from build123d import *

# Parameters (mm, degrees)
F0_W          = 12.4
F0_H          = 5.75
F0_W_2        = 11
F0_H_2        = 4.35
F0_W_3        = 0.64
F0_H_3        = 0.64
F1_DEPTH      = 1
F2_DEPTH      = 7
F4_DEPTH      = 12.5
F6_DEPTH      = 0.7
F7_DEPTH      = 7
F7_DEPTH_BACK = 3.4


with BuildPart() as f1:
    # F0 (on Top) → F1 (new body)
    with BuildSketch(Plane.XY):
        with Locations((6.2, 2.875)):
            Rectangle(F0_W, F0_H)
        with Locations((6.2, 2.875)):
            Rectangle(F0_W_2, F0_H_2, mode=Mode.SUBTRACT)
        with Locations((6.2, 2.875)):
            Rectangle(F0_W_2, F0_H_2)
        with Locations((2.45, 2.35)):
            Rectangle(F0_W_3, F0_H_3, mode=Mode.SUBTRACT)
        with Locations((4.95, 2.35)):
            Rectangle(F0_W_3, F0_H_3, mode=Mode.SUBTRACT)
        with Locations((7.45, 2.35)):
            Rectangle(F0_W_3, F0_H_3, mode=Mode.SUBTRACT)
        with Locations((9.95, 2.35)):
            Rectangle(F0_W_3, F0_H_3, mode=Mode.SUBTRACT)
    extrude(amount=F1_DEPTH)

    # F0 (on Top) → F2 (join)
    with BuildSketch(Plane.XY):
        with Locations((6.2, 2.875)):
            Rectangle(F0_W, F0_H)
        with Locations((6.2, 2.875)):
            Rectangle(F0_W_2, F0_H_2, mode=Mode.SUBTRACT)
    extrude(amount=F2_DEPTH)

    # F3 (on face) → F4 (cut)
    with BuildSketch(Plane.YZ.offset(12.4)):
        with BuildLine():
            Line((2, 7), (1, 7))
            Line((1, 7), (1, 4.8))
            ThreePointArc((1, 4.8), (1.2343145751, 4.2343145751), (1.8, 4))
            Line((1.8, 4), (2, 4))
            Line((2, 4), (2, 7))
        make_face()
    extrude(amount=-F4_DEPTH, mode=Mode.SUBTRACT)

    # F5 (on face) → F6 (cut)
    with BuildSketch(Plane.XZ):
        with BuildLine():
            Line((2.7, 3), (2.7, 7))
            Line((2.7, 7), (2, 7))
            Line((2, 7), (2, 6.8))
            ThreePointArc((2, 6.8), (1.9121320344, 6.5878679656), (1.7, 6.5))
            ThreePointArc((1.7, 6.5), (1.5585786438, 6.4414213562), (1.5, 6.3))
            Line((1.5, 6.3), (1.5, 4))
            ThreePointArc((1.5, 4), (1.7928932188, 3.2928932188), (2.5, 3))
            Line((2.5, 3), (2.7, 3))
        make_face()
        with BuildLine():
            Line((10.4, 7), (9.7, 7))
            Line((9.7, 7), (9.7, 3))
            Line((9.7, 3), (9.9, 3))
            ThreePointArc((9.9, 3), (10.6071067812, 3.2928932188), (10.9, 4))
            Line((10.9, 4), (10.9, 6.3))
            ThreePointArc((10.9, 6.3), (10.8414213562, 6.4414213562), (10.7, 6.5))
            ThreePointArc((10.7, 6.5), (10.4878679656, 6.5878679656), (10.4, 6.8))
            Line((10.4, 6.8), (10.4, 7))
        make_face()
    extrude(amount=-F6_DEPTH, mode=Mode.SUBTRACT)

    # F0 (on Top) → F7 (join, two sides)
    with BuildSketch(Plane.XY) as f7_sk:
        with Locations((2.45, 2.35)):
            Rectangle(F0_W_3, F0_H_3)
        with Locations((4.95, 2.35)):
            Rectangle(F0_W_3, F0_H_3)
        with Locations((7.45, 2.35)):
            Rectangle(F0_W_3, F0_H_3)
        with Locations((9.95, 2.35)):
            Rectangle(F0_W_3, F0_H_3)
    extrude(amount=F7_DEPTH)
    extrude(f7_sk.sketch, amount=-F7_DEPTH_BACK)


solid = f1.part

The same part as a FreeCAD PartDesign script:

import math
import FreeCAD as App
import Part
import Sketcher
from FreeCAD import Vector

doc = App.newDocument("Part")
params = doc.addObject("Spreadsheet::Sheet", "Params")
for row, (alias, value) in enumerate([
    ("sketch1_width", "12.4 mm"),
    ("sketch1_width2", "0.64 mm"),
    ("sketch1_height", "5.75 mm"),
    ("pad1_length", "1 mm"),
    ("sketch2_width", "11 mm"),
    ("sketch2_width2", "12.4 mm"),
    ("sketch2_height", "5.75 mm"),
    ("sketch2_height2", "4.35 mm"),
    ("pad2_length", "7 mm"),
    ("sketch3_radius", "0.8 mm"),
    ("sketch3_width", "1 mm"),
    ("sketch3_height", "3 mm"),
    ("pocket1_length", "12.5 mm"),
    ("sketch4_radius", "1 mm"),
    ("sketch4_radius2", "0.3 mm"),
    ("sketch4_radius3", "0.2 mm"),
    ("sketch4_height", "4 mm"),
    ("sketch4_width", "0.7 mm"),
    ("pocket2_length", "0.7 mm"),
    ("sketch5_width", "0.64 mm"),
    ("pad3_length", "7 mm"),
    ("pad3_length2", "3.4 mm"),
], start=1):
    params.set(f"A{row}", alias)
    params.set(f"B{row}", "=" + value)
    params.setAlias(f"B{row}", alias)

body = doc.addObject("PartDesign::Body", "Body")

# Sketch on XY plane
sketch1 = doc.addObject("Sketcher::SketchObject", "Sketch")
body.addObject(sketch1)
sketch1.AttachmentSupport = (doc.XY_Plane, [""])
sketch1.MapMode = "FlatFace"
sketch1.addGeometry(Part.LineSegment(Vector(0, 5.8, 0), Vector(0, 0, 0)), False)
sketch1.addGeometry(Part.LineSegment(Vector(0, 0, 0), Vector(12.4, 0, 0)), False)
sketch1.addGeometry(Part.LineSegment(Vector(12.4, 0, 0), Vector(12.4, 5.8, 0)), False)
sketch1.addGeometry(Part.LineSegment(Vector(12.4, 5.8, 0), Vector(0, 5.8, 0)), False)
sketch1.addGeometry(Part.LineSegment(Vector(2.8, 2, 0), Vector(2.1, 2, 0)), False)
sketch1.addGeometry(Part.LineSegment(Vector(2.1, 2, 0), Vector(2.1, 2.7, 0)), False)
sketch1.addGeometry(Part.LineSegment(Vector(2.1, 2.7, 0), Vector(2.8, 2.7, 0)), False)
sketch1.addGeometry(Part.LineSegment(Vector(2.8, 2.7, 0), Vector(2.8, 2, 0)), False)
sketch1.addGeometry(Part.LineSegment(Vector(5.3, 2, 0), Vector(4.6, 2, 0)), False)
sketch1.addGeometry(Part.LineSegment(Vector(4.6, 2, 0), Vector(4.6, 2.7, 0)), False)
sketch1.addGeometry(Part.LineSegment(Vector(4.6, 2.7, 0), Vector(5.3, 2.7, 0)), False)
sketch1.addGeometry(Part.LineSegment(Vector(5.3, 2.7, 0), Vector(5.3, 2, 0)), False)
sketch1.addGeometry(Part.LineSegment(Vector(7.8, 2, 0), Vector(7.1, 2, 0)), False)
sketch1.addGeometry(Part.LineSegment(Vector(7.1, 2, 0), Vector(7.1, 2.7, 0)), False)
sketch1.addGeometry(Part.LineSegment(Vector(7.1, 2.7, 0), Vector(7.8, 2.7, 0)), False)
sketch1.addGeometry(Part.LineSegment(Vector(7.8, 2.7, 0), Vector(7.8, 2, 0)), False)
sketch1.addGeometry(Part.LineSegment(Vector(10.3, 2, 0), Vector(9.6, 2, 0)), False)
sketch1.addGeometry(Part.LineSegment(Vector(9.6, 2, 0), Vector(9.6, 2.7, 0)), False)
sketch1.addGeometry(Part.LineSegment(Vector(9.6, 2.7, 0), Vector(10.3, 2.7, 0)), False)
sketch1.addGeometry(Part.LineSegment(Vector(10.3, 2.7, 0), Vector(10.3, 2, 0)), False)
sketch1.addConstraint(Sketcher.Constraint("Coincident", 0, 2, 1, 1))
sketch1.addConstraint(Sketcher.Constraint("Coincident", 1, 2, 2, 1))
sketch1.addConstraint(Sketcher.Constraint("Coincident", 2, 2, 3, 1))
sketch1.addConstraint(Sketcher.Constraint("Coincident", 3, 2, 0, 1))
sketch1.addConstraint(Sketcher.Constraint("Coincident", 4, 2, 5, 1))
sketch1.addConstraint(Sketcher.Constraint("Coincident", 5, 2, 6, 1))
sketch1.addConstraint(Sketcher.Constraint("Coincident", 6, 2, 7, 1))
sketch1.addConstraint(Sketcher.Constraint("Coincident", 7, 2, 4, 1))
sketch1.addConstraint(Sketcher.Constraint("Coincident", 8, 2, 9, 1))
sketch1.addConstraint(Sketcher.Constraint("Coincident", 9, 2, 10, 1))
sketch1.addConstraint(Sketcher.Constraint("Coincident", 10, 2, 11, 1))
sketch1.addConstraint(Sketcher.Constraint("Coincident", 11, 2, 8, 1))
sketch1.addConstraint(Sketcher.Constraint("Coincident", 12, 2, 13, 1))
sketch1.addConstraint(Sketcher.Constraint("Coincident", 13, 2, 14, 1))
sketch1.addConstraint(Sketcher.Constraint("Coincident", 14, 2, 15, 1))
sketch1.addConstraint(Sketcher.Constraint("Coincident", 15, 2, 12, 1))
sketch1.addConstraint(Sketcher.Constraint("Coincident", 16, 2, 17, 1))
sketch1.addConstraint(Sketcher.Constraint("Coincident", 17, 2, 18, 1))
sketch1.addConstraint(Sketcher.Constraint("Coincident", 18, 2, 19, 1))
sketch1.addConstraint(Sketcher.Constraint("Coincident", 19, 2, 16, 1))
sketch1.addConstraint(Sketcher.Constraint("Vertical", 0))
sketch1.addConstraint(Sketcher.Constraint("Horizontal", 1))
sketch1.addConstraint(Sketcher.Constraint("Vertical", 2))
sketch1.addConstraint(Sketcher.Constraint("Horizontal", 3))
sketch1.addConstraint(Sketcher.Constraint("Horizontal", 4))
sketch1.addConstraint(Sketcher.Constraint("Vertical", 5))
sketch1.addConstraint(Sketcher.Constraint("Horizontal", 6))
sketch1.addConstraint(Sketcher.Constraint("Vertical", 7))
sketch1.addConstraint(Sketcher.Constraint("Horizontal", 8))
sketch1.addConstraint(Sketcher.Constraint("Vertical", 9))
sketch1.addConstraint(Sketcher.Constraint("Horizontal", 10))
sketch1.addConstraint(Sketcher.Constraint("Vertical", 11))
sketch1.addConstraint(Sketcher.Constraint("Horizontal", 12))
sketch1.addConstraint(Sketcher.Constraint("Vertical", 13))
sketch1.addConstraint(Sketcher.Constraint("Horizontal", 14))
sketch1.addConstraint(Sketcher.Constraint("Vertical", 15))
sketch1.addConstraint(Sketcher.Constraint("Horizontal", 16))
sketch1.addConstraint(Sketcher.Constraint("Vertical", 17))
sketch1.addConstraint(Sketcher.Constraint("Horizontal", 18))
sketch1.addConstraint(Sketcher.Constraint("Vertical", 19))
sketch1.addConstraint(Sketcher.Constraint("Coincident", 0, 2, -1, 1))
sketch1.addConstraint(Sketcher.Constraint("Horizontal", 7, 2, 8, 2))
sketch1.addConstraint(Sketcher.Constraint("Horizontal", 6, 2, 9, 2))
sketch1.addConstraint(Sketcher.Constraint("Horizontal", 11, 2, 12, 2))
sketch1.addConstraint(Sketcher.Constraint("Horizontal", 10, 2, 13, 2))
sketch1.addConstraint(Sketcher.Constraint("Horizontal", 15, 2, 16, 2))
sketch1.addConstraint(Sketcher.Constraint("Horizontal", 14, 2, 17, 2))
sketch1.addConstraint(Sketcher.Constraint("Equal", 6, 8))
sketch1.addConstraint(Sketcher.Constraint("Equal", 10, 12))
sketch1.addConstraint(Sketcher.Constraint("Equal", 14, 16))
sketch1.addConstraint(Sketcher.Constraint("Equal", 18, 5))
sketch1.addConstraint(Sketcher.Constraint("DistanceX", 1, 1, 1, 2, 12.4))
sketch1.addConstraint(Sketcher.Constraint("DistanceX", 4, 2, 4, 1, 0.64))
sketch1.addConstraint(Sketcher.Constraint("DistanceY", 0, 2, 0, 1, 5.75))
sketch1.addConstraint(Sketcher.Constraint("DistanceX", 4, 2, 8, 2, 2.5))
sketch1.addConstraint(Sketcher.Constraint("DistanceX", 8, 2, 12, 2, 2.5))
sketch1.addConstraint(Sketcher.Constraint("DistanceX", 12, 2, 16, 2, 2.5))
sketch1.addConstraint(Sketcher.Constraint("DistanceX", -1, 1, 4, 2, 2.13))
sketch1.addConstraint(Sketcher.Constraint("DistanceY", -1, 1, 4, 2, 2.03))
sketch1.setExpression("Constraints[51]", "Params.sketch1_width")
sketch1.setExpression("Constraints[52]", "Params.sketch1_width2")
sketch1.setExpression("Constraints[53]", "Params.sketch1_height")
pad1 = doc.addObject("PartDesign::Pad", "Pad")
body.addObject(pad1)
pad1.Profile = sketch1
pad1.setExpression("Length", "Params.pad1_length")

# Sketch on XY plane
sketch2 = doc.addObject("Sketcher::SketchObject", "Sketch001")
body.addObject(sketch2)
sketch2.AttachmentSupport = (doc.XY_Plane, [""])
sketch2.MapMode = "FlatFace"
sketch2.addGeometry(Part.LineSegment(Vector(0, 5.8, 0), Vector(0, 0, 0)), False)
sketch2.addGeometry(Part.LineSegment(Vector(0, 0, 0), Vector(12.4, 0, 0)), False)
sketch2.addGeometry(Part.LineSegment(Vector(12.4, 0, 0), Vector(12.4, 5.8, 0)), False)
sketch2.addGeometry(Part.LineSegment(Vector(12.4, 5.8, 0), Vector(0, 5.8, 0)), False)
sketch2.addGeometry(Part.LineSegment(Vector(11.7, 0.7, 0), Vector(0.7, 0.7, 0)), False)
sketch2.addGeometry(Part.LineSegment(Vector(0.7, 0.7, 0), Vector(0.7, 5, 0)), False)
sketch2.addGeometry(Part.LineSegment(Vector(0.7, 5, 0), Vector(11.7, 5, 0)), False)
sketch2.addGeometry(Part.LineSegment(Vector(11.7, 5, 0), Vector(11.7, 0.7, 0)), False)
sketch2.addConstraint(Sketcher.Constraint("Coincident", 0, 2, 1, 1))
sketch2.addConstraint(Sketcher.Constraint("Coincident", 1, 2, 2, 1))
sketch2.addConstraint(Sketcher.Constraint("Coincident", 2, 2, 3, 1))
sketch2.addConstraint(Sketcher.Constraint("Coincident", 3, 2, 0, 1))
sketch2.addConstraint(Sketcher.Constraint("Coincident", 4, 2, 5, 1))
sketch2.addConstraint(Sketcher.Constraint("Coincident", 5, 2, 6, 1))
sketch2.addConstraint(Sketcher.Constraint("Coincident", 6, 2, 7, 1))
sketch2.addConstraint(Sketcher.Constraint("Coincident", 7, 2, 4, 1))
sketch2.addConstraint(Sketcher.Constraint("Vertical", 0))
sketch2.addConstraint(Sketcher.Constraint("Horizontal", 1))
sketch2.addConstraint(Sketcher.Constraint("Vertical", 2))
sketch2.addConstraint(Sketcher.Constraint("Horizontal", 3))
sketch2.addConstraint(Sketcher.Constraint("Horizontal", 4))
sketch2.addConstraint(Sketcher.Constraint("Vertical", 5))
sketch2.addConstraint(Sketcher.Constraint("Horizontal", 6))
sketch2.addConstraint(Sketcher.Constraint("Vertical", 7))
sketch2.addConstraint(Sketcher.Constraint("Coincident", 0, 2, -1, 1))
sketch2.addConstraint(Sketcher.Constraint("DistanceX", 4, 2, 4, 1, 11.0))
sketch2.addConstraint(Sketcher.Constraint("DistanceX", 1, 1, 1, 2, 12.4))
sketch2.addConstraint(Sketcher.Constraint("DistanceY", 0, 2, 0, 1, 5.75))
sketch2.addConstraint(Sketcher.Constraint("DistanceY", 5, 1, 5, 2, 4.35))
sketch2.addConstraint(Sketcher.Constraint("DistanceX", -1, 1, 4, 2, 0.7))
sketch2.addConstraint(Sketcher.Constraint("DistanceY", -1, 1, 4, 2, 0.7))
sketch2.setExpression("Constraints[17]", "Params.sketch2_width")
sketch2.setExpression("Constraints[18]", "Params.sketch2_width2")
sketch2.setExpression("Constraints[19]", "Params.sketch2_height")
sketch2.setExpression("Constraints[20]", "Params.sketch2_height2")
pad2 = doc.addObject("PartDesign::Pad", "Pad001")
body.addObject(pad2)
pad2.Profile = sketch2
pad2.setExpression("Length", "Params.pad2_length")

# Sketch on YZ plane
sketch3 = doc.addObject("Sketcher::SketchObject", "Sketch002")
body.addObject(sketch3)
sketch3.AttachmentSupport = (doc.YZ_Plane, [""])
sketch3.MapMode = "FlatFace"
sketch3.AttachmentOffset = App.Placement(Vector(0, 0, 12.4), App.Rotation())
sketch3.addGeometry(Part.LineSegment(Vector(2, 7, 0), Vector(1, 7, 0)), False)
sketch3.addGeometry(Part.LineSegment(Vector(1, 7, 0), Vector(1, 4.8, 0)), False)
sketch3.addGeometry(Part.ArcOfCircle(Part.Circle(Vector(1.8, 4.8, 0), Vector(0, 0, 1), 0.8), math.radians(180), math.radians(270)), False)
sketch3.addGeometry(Part.LineSegment(Vector(1.8, 4, 0), Vector(2, 4, 0)), False)
sketch3.addGeometry(Part.LineSegment(Vector(2, 4, 0), Vector(2, 7, 0)), False)
sketch3.addConstraint(Sketcher.Constraint("Coincident", 0, 2, 1, 1))
sketch3.addConstraint(Sketcher.Constraint("Tangent", 1, 2, 2, 1))
sketch3.addConstraint(Sketcher.Constraint("Tangent", 2, 2, 3, 1))
sketch3.addConstraint(Sketcher.Constraint("Coincident", 3, 2, 4, 1))
sketch3.addConstraint(Sketcher.Constraint("Coincident", 4, 2, 0, 1))
sketch3.addConstraint(Sketcher.Constraint("Horizontal", 0))
sketch3.addConstraint(Sketcher.Constraint("Vertical", 1))
sketch3.addConstraint(Sketcher.Constraint("Horizontal", 3))
sketch3.addConstraint(Sketcher.Constraint("Vertical", 4))
sketch3.addConstraint(Sketcher.Constraint("Radius", 2, 0.8))
sketch3.addConstraint(Sketcher.Constraint("DistanceX", 0, 2, 0, 1, 1.0))
sketch3.addConstraint(Sketcher.Constraint("DistanceY", 4, 1, 4, 2, 3.0))
sketch3.addConstraint(Sketcher.Constraint("DistanceX", -1, 1, 0, 2, 1.0))
sketch3.addConstraint(Sketcher.Constraint("DistanceY", -1, 1, 0, 2, 7.0))
sketch3.setExpression("Constraints[9]", "Params.sketch3_radius")
sketch3.setExpression("Constraints[10]", "Params.sketch3_width")
sketch3.setExpression("Constraints[11]", "Params.sketch3_height")
pocket1 = doc.addObject("PartDesign::Pocket", "Pocket")
body.addObject(pocket1)
pocket1.Profile = sketch3
pocket1.setExpression("Length", "Params.pocket1_length")

# Sketch on XZ plane
sketch4 = doc.addObject("Sketcher::SketchObject", "Sketch003")
body.addObject(sketch4)
sketch4.AttachmentSupport = (doc.XZ_Plane, [""])
sketch4.MapMode = "FlatFace"
sketch4.addGeometry(Part.LineSegment(Vector(2.7, 3, 0), Vector(2.7, 7, 0)), False)
sketch4.addGeometry(Part.LineSegment(Vector(2.7, 7, 0), Vector(2, 7, 0)), False)
sketch4.addGeometry(Part.LineSegment(Vector(2, 7, 0), Vector(2, 6.8, 0)), False)
sketch4.addGeometry(Part.ArcOfCircle(Part.Circle(Vector(1.7, 6.8, 0), Vector(0, 0, 1), 0.3), math.radians(-90), math.radians(0)), False)
sketch4.addGeometry(Part.ArcOfCircle(Part.Circle(Vector(1.7, 6.3, 0), Vector(0, 0, 1), 0.2), math.radians(90), math.radians(180)), False)
sketch4.addGeometry(Part.LineSegment(Vector(1.5, 6.3, 0), Vector(1.5, 4, 0)), False)
sketch4.addGeometry(Part.ArcOfCircle(Part.Circle(Vector(2.5, 4, 0), Vector(0, 0, 1), 1), math.radians(180), math.radians(270)), False)
sketch4.addGeometry(Part.LineSegment(Vector(2.5, 3, 0), Vector(2.7, 3, 0)), False)
sketch4.addGeometry(Part.LineSegment(Vector(10.4, 7, 0), Vector(9.7, 7, 0)), False)
sketch4.addGeometry(Part.LineSegment(Vector(9.7, 7, 0), Vector(9.7, 3, 0)), False)
sketch4.addGeometry(Part.LineSegment(Vector(9.7, 3, 0), Vector(9.9, 3, 0)), False)
sketch4.addGeometry(Part.ArcOfCircle(Part.Circle(Vector(9.9, 4, 0), Vector(0, 0, 1), 1), math.radians(-90), math.radians(0)), False)
sketch4.addGeometry(Part.LineSegment(Vector(10.9, 4, 0), Vector(10.9, 6.3, 0)), False)
sketch4.addGeometry(Part.ArcOfCircle(Part.Circle(Vector(10.7, 6.3, 0), Vector(0, 0, 1), 0.2), math.radians(0), math.radians(90)), False)
sketch4.addGeometry(Part.ArcOfCircle(Part.Circle(Vector(10.7, 6.8, 0), Vector(0, 0, 1), 0.3), math.radians(180), math.radians(270)), False)
sketch4.addGeometry(Part.LineSegment(Vector(10.4, 6.8, 0), Vector(10.4, 7, 0)), False)
sketch4.addConstraint(Sketcher.Constraint("Coincident", 0, 2, 1, 1))
sketch4.addConstraint(Sketcher.Constraint("Coincident", 1, 2, 2, 1))
sketch4.addConstraint(Sketcher.Constraint("Tangent", 2, 2, 3, 2))
sketch4.addConstraint(Sketcher.Constraint("Tangent", 3, 1, 4, 1))
sketch4.addConstraint(Sketcher.Constraint("Tangent", 4, 2, 5, 1))
sketch4.addConstraint(Sketcher.Constraint("Tangent", 5, 2, 6, 1))
sketch4.addConstraint(Sketcher.Constraint("Tangent", 6, 2, 7, 1))
sketch4.addConstraint(Sketcher.Constraint("Coincident", 7, 2, 0, 1))
sketch4.addConstraint(Sketcher.Constraint("Coincident", 8, 2, 9, 1))
sketch4.addConstraint(Sketcher.Constraint("Coincident", 9, 2, 10, 1))
sketch4.addConstraint(Sketcher.Constraint("Tangent", 10, 2, 11, 1))
sketch4.addConstraint(Sketcher.Constraint("Tangent", 11, 2, 12, 1))
sketch4.addConstraint(Sketcher.Constraint("Tangent", 12, 2, 13, 1))
sketch4.addConstraint(Sketcher.Constraint("Tangent", 13, 2, 14, 2))
sketch4.addConstraint(Sketcher.Constraint("Tangent", 14, 1, 15, 1))
sketch4.addConstraint(Sketcher.Constraint("Coincident", 15, 2, 8, 1))
sketch4.addConstraint(Sketcher.Constraint("Vertical", 0))
sketch4.addConstraint(Sketcher.Constraint("Horizontal", 1))
sketch4.addConstraint(Sketcher.Constraint("Vertical", 2))
sketch4.addConstraint(Sketcher.Constraint("Vertical", 5))
sketch4.addConstraint(Sketcher.Constraint("Horizontal", 7))
sketch4.addConstraint(Sketcher.Constraint("Horizontal", 8))
sketch4.addConstraint(Sketcher.Constraint("Vertical", 9))
sketch4.addConstraint(Sketcher.Constraint("Horizontal", 10))
sketch4.addConstraint(Sketcher.Constraint("Vertical", 12))
sketch4.addConstraint(Sketcher.Constraint("Vertical", 15))
sketch4.addConstraint(Sketcher.Constraint("Equal", 6, 11))
sketch4.addConstraint(Sketcher.Constraint("Equal", 4, 13))
sketch4.addConstraint(Sketcher.Constraint("Equal", 3, 14))
sketch4.addConstraint(Sketcher.Constraint("Horizontal", 6, 3, 11, 3))
sketch4.addConstraint(Sketcher.Constraint("Horizontal", 4, 3, 13, 3))
sketch4.addConstraint(Sketcher.Constraint("Horizontal", 1, 2, 8, 2))
sketch4.addConstraint(Sketcher.Constraint("Vertical", 3, 3, 4, 3))
sketch4.addConstraint(Sketcher.Constraint("Vertical", 13, 3, 14, 3))
sketch4.addConstraint(Sketcher.Constraint("Equal", 1, 8))
sketch4.addConstraint(Sketcher.Constraint("Equal", 10, 2))
sketch4.addConstraint(Sketcher.Constraint("Radius", 6, 1.0))
sketch4.addConstraint(Sketcher.Constraint("Radius", 3, 0.3))
sketch4.addConstraint(Sketcher.Constraint("Radius", 4, 0.2))
sketch4.addConstraint(Sketcher.Constraint("DistanceY", 0, 1, 0, 2, 4.0))
sketch4.addConstraint(Sketcher.Constraint("DistanceX", 1, 2, 1, 1, 0.7))
sketch4.addConstraint(Sketcher.Constraint("DistanceY", -1, 1, 6, 3, 4.0))
sketch4.addConstraint(Sketcher.Constraint("DistanceX", -1, 1, 1, 2, 2.0))
sketch4.addConstraint(Sketcher.Constraint("DistanceX", 4, 3, 13, 3, 9.0))
sketch4.setExpression("Constraints[36]", "Params.sketch4_radius")
sketch4.setExpression("Constraints[37]", "Params.sketch4_radius2")
sketch4.setExpression("Constraints[38]", "Params.sketch4_radius3")
sketch4.setExpression("Constraints[39]", "Params.sketch4_height")
sketch4.setExpression("Constraints[40]", "Params.sketch4_width")
pocket2 = doc.addObject("PartDesign::Pocket", "Pocket001")
body.addObject(pocket2)
pocket2.Profile = sketch4
pocket2.setExpression("Length", "Params.pocket2_length")

# Sketch on XY plane
sketch5 = doc.addObject("Sketcher::SketchObject", "Sketch004")
body.addObject(sketch5)
sketch5.AttachmentSupport = (doc.XY_Plane, [""])
sketch5.MapMode = "FlatFace"
sketch5.addGeometry(Part.LineSegment(Vector(2.1, 2.7, 0), Vector(2.1, 2, 0)), False)
sketch5.addGeometry(Part.LineSegment(Vector(2.1, 2, 0), Vector(2.8, 2, 0)), False)
sketch5.addGeometry(Part.LineSegment(Vector(2.8, 2, 0), Vector(2.8, 2.7, 0)), False)
sketch5.addGeometry(Part.LineSegment(Vector(2.8, 2.7, 0), Vector(2.1, 2.7, 0)), False)
sketch5.addGeometry(Part.LineSegment(Vector(4.6, 2.7, 0), Vector(4.6, 2, 0)), False)
sketch5.addGeometry(Part.LineSegment(Vector(4.6, 2, 0), Vector(5.3, 2, 0)), False)
sketch5.addGeometry(Part.LineSegment(Vector(5.3, 2, 0), Vector(5.3, 2.7, 0)), False)
sketch5.addGeometry(Part.LineSegment(Vector(5.3, 2.7, 0), Vector(4.6, 2.7, 0)), False)
sketch5.addGeometry(Part.LineSegment(Vector(7.1, 2.7, 0), Vector(7.1, 2, 0)), False)
sketch5.addGeometry(Part.LineSegment(Vector(7.1, 2, 0), Vector(7.8, 2, 0)), False)
sketch5.addGeometry(Part.LineSegment(Vector(7.8, 2, 0), Vector(7.8, 2.7, 0)), False)
sketch5.addGeometry(Part.LineSegment(Vector(7.8, 2.7, 0), Vector(7.1, 2.7, 0)), False)
sketch5.addGeometry(Part.LineSegment(Vector(9.6, 2.7, 0), Vector(9.6, 2, 0)), False)
sketch5.addGeometry(Part.LineSegment(Vector(9.6, 2, 0), Vector(10.3, 2, 0)), False)
sketch5.addGeometry(Part.LineSegment(Vector(10.3, 2, 0), Vector(10.3, 2.7, 0)), False)
sketch5.addGeometry(Part.LineSegment(Vector(10.3, 2.7, 0), Vector(9.6, 2.7, 0)), False)
sketch5.addConstraint(Sketcher.Constraint("Coincident", 0, 2, 1, 1))
sketch5.addConstraint(Sketcher.Constraint("Coincident", 1, 2, 2, 1))
sketch5.addConstraint(Sketcher.Constraint("Coincident", 2, 2, 3, 1))
sketch5.addConstraint(Sketcher.Constraint("Coincident", 3, 2, 0, 1))
sketch5.addConstraint(Sketcher.Constraint("Coincident", 4, 2, 5, 1))
sketch5.addConstraint(Sketcher.Constraint("Coincident", 5, 2, 6, 1))
sketch5.addConstraint(Sketcher.Constraint("Coincident", 6, 2, 7, 1))
sketch5.addConstraint(Sketcher.Constraint("Coincident", 7, 2, 4, 1))
sketch5.addConstraint(Sketcher.Constraint("Coincident", 8, 2, 9, 1))
sketch5.addConstraint(Sketcher.Constraint("Coincident", 9, 2, 10, 1))
sketch5.addConstraint(Sketcher.Constraint("Coincident", 10, 2, 11, 1))
sketch5.addConstraint(Sketcher.Constraint("Coincident", 11, 2, 8, 1))
sketch5.addConstraint(Sketcher.Constraint("Coincident", 12, 2, 13, 1))
sketch5.addConstraint(Sketcher.Constraint("Coincident", 13, 2, 14, 1))
sketch5.addConstraint(Sketcher.Constraint("Coincident", 14, 2, 15, 1))
sketch5.addConstraint(Sketcher.Constraint("Coincident", 15, 2, 12, 1))
sketch5.addConstraint(Sketcher.Constraint("Vertical", 0))
sketch5.addConstraint(Sketcher.Constraint("Horizontal", 1))
sketch5.addConstraint(Sketcher.Constraint("Vertical", 2))
sketch5.addConstraint(Sketcher.Constraint("Horizontal", 3))
sketch5.addConstraint(Sketcher.Constraint("Vertical", 4))
sketch5.addConstraint(Sketcher.Constraint("Horizontal", 5))
sketch5.addConstraint(Sketcher.Constraint("Vertical", 6))
sketch5.addConstraint(Sketcher.Constraint("Horizontal", 7))
sketch5.addConstraint(Sketcher.Constraint("Vertical", 8))
sketch5.addConstraint(Sketcher.Constraint("Horizontal", 9))
sketch5.addConstraint(Sketcher.Constraint("Vertical", 10))
sketch5.addConstraint(Sketcher.Constraint("Horizontal", 11))
sketch5.addConstraint(Sketcher.Constraint("Vertical", 12))
sketch5.addConstraint(Sketcher.Constraint("Horizontal", 13))
sketch5.addConstraint(Sketcher.Constraint("Vertical", 14))
sketch5.addConstraint(Sketcher.Constraint("Horizontal", 15))
sketch5.addConstraint(Sketcher.Constraint("Horizontal", 1, 2, 4, 2))
sketch5.addConstraint(Sketcher.Constraint("Horizontal", 3, 2, 6, 2))
sketch5.addConstraint(Sketcher.Constraint("Horizontal", 5, 2, 8, 2))
sketch5.addConstraint(Sketcher.Constraint("Horizontal", 7, 2, 10, 2))
sketch5.addConstraint(Sketcher.Constraint("Horizontal", 9, 2, 12, 2))
sketch5.addConstraint(Sketcher.Constraint("Horizontal", 11, 2, 14, 2))
sketch5.addConstraint(Sketcher.Constraint("Equal", 3, 5))
sketch5.addConstraint(Sketcher.Constraint("Equal", 7, 9))
sketch5.addConstraint(Sketcher.Constraint("Equal", 11, 13))
sketch5.addConstraint(Sketcher.Constraint("Equal", 15, 0))
sketch5.addConstraint(Sketcher.Constraint("DistanceX", 1, 1, 1, 2, 0.64))
sketch5.addConstraint(Sketcher.Constraint("DistanceX", 0, 2, 4, 2, 2.5))
sketch5.addConstraint(Sketcher.Constraint("DistanceX", 4, 2, 8, 2, 2.5))
sketch5.addConstraint(Sketcher.Constraint("DistanceX", 8, 2, 12, 2, 2.5))
sketch5.addConstraint(Sketcher.Constraint("DistanceX", -1, 1, 0, 2, 2.13))
sketch5.addConstraint(Sketcher.Constraint("DistanceY", -1, 1, 0, 2, 2.03))
sketch5.setExpression("Constraints[42]", "Params.sketch5_width")
pad3 = doc.addObject("PartDesign::Pad", "Pad002")
body.addObject(pad3)
pad3.Profile = sketch5
pad3.Type = "TwoLengths"
pad3.setExpression("Length", "Params.pad3_length")
pad3.setExpression("Length2", "Params.pad3_length2")

doc.recompute()
